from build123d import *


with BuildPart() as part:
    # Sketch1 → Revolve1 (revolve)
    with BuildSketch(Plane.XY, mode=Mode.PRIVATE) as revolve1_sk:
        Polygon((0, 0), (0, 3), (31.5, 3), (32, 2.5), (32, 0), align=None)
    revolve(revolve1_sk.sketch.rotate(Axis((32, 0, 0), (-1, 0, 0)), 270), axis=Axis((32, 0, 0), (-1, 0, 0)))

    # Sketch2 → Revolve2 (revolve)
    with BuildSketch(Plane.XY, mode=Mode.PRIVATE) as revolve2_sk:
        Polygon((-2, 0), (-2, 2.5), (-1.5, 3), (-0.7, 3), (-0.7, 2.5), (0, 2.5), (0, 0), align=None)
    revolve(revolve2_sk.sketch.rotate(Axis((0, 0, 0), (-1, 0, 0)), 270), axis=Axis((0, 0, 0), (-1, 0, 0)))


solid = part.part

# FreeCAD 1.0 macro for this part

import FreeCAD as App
import Part
import Sketcher
from FreeCAD import Vector
Q = App.Units.Quantity


def add_polygon(sketch, points):
    """Adds a closed chain of lines whose ends are joined by coincident constraints."""
    first, n = sketch.GeometryCount, len(points)
    for a, b in zip(points, points[1:] + points[:1]):
        sketch.addGeometry(Part.LineSegment(App.Vector(*a, 0), App.Vector(*b, 0)), False)
    for i in range(n):
        sketch.addConstraint(Sketcher.Constraint("Coincident", first + i, 2, first + (i + 1) % n, 1))

doc = App.newDocument("Part")
body = doc.addObject("PartDesign::Body", "Body")

# Sketch on XY plane
sketch1 = body.newObject("Sketcher::SketchObject", "Sketch")
sketch1.AttachmentSupport = (doc.getObject("XY_Plane"), [""])
sketch1.MapMode = "FlatFace"
add_polygon(sketch1, [(0, 3), (0, 0), (32, 0), (32, 2.5), (31.5, 3)])  # lines 0-4
sketch1.addConstraint(Sketcher.Constraint("Vertical", 0))
sketch1.addConstraint(Sketcher.Constraint("Horizontal", 1))
sketch1.addConstraint(Sketcher.Constraint("Vertical", 2))
sketch1.addConstraint(Sketcher.Constraint("Horizontal", 4))
sketch1.addConstraint(Sketcher.Constraint("Coincident", 0, 2, -1, 1))
sketch1.addConstraint(Sketcher.Constraint("DistanceX", 1, 1, 1, 2, 32.0))
sketch1.addConstraint(Sketcher.Constraint("DistanceY", 0, 2, 0, 1, 3.0))
sketch1.addConstraint(Sketcher.Constraint("Angle", 3, Q("135 deg")))
sketch1.addConstraint(Sketcher.Constraint("DistanceX", 4, 2, 4, 1, 31.5))
revolution = body.newObject("PartDesign::Revolution", "Revolution")
revolution.Profile = sketch1
revolution.ReferenceAxis = (sketch1, ["H_Axis"])
revolution.Angle = 360

# Sketch on XY plane
sketch2 = body.newObject("Sketcher::SketchObject", "Sketch001")
sketch2.AttachmentSupport = (doc.getObject("XY_Plane"), [""])
sketch2.MapMode = "FlatFace"
add_polygon(sketch2, [(-2, 2.5), (-2, 0), (0, 0), (0, 2.5), (-0.7, 2.5), (-0.7, 3), (-1.5, 3)])  # lines 0-6
sketch2.addConstraint(Sketcher.Constraint("Vertical", 0))
sketch2.addConstraint(Sketcher.Constraint("Horizontal", 1))
sketch2.addConstraint(Sketcher.Constraint("Vertical", 2))
sketch2.addConstraint(Sketcher.Constraint("Horizontal", 3))
sketch2.addConstraint(Sketcher.Constraint("Vertical", 4))
sketch2.addConstraint(Sketcher.Constraint("Horizontal", 5))
sketch2.addConstraint(Sketcher.Constraint("Coincident", 1, 2, -1, 1))
sketch2.addConstraint(Sketcher.Constraint("Horizontal", 3, 2, 6, 2))
sketch2.addConstraint(Sketcher.Constraint("DistanceX", 1, 1, 1, 2, 2.0))
sketch2.addConstraint(Sketcher.Constraint("Angle", 6, Q("-135 deg")))
sketch2.addConstraint(Sketcher.Constraint("DistanceX", 3, 2, 3, 1, 0.7))
sketch2.addConstraint(Sketcher.Constraint("DistanceX", 5, 2, 5, 1, 0.8))
sketch2.addConstraint(Sketcher.Constraint("DistanceY", 0, 2, 0, 1, 2.5))
revolution2 = body.newObject("PartDesign::Revolution", "Revolution001")
revolution2.Profile = sketch2
revolution2.ReferenceAxis = (sketch2, ["H_Axis"])
revolution2.Angle = 360

doc.recompute()
